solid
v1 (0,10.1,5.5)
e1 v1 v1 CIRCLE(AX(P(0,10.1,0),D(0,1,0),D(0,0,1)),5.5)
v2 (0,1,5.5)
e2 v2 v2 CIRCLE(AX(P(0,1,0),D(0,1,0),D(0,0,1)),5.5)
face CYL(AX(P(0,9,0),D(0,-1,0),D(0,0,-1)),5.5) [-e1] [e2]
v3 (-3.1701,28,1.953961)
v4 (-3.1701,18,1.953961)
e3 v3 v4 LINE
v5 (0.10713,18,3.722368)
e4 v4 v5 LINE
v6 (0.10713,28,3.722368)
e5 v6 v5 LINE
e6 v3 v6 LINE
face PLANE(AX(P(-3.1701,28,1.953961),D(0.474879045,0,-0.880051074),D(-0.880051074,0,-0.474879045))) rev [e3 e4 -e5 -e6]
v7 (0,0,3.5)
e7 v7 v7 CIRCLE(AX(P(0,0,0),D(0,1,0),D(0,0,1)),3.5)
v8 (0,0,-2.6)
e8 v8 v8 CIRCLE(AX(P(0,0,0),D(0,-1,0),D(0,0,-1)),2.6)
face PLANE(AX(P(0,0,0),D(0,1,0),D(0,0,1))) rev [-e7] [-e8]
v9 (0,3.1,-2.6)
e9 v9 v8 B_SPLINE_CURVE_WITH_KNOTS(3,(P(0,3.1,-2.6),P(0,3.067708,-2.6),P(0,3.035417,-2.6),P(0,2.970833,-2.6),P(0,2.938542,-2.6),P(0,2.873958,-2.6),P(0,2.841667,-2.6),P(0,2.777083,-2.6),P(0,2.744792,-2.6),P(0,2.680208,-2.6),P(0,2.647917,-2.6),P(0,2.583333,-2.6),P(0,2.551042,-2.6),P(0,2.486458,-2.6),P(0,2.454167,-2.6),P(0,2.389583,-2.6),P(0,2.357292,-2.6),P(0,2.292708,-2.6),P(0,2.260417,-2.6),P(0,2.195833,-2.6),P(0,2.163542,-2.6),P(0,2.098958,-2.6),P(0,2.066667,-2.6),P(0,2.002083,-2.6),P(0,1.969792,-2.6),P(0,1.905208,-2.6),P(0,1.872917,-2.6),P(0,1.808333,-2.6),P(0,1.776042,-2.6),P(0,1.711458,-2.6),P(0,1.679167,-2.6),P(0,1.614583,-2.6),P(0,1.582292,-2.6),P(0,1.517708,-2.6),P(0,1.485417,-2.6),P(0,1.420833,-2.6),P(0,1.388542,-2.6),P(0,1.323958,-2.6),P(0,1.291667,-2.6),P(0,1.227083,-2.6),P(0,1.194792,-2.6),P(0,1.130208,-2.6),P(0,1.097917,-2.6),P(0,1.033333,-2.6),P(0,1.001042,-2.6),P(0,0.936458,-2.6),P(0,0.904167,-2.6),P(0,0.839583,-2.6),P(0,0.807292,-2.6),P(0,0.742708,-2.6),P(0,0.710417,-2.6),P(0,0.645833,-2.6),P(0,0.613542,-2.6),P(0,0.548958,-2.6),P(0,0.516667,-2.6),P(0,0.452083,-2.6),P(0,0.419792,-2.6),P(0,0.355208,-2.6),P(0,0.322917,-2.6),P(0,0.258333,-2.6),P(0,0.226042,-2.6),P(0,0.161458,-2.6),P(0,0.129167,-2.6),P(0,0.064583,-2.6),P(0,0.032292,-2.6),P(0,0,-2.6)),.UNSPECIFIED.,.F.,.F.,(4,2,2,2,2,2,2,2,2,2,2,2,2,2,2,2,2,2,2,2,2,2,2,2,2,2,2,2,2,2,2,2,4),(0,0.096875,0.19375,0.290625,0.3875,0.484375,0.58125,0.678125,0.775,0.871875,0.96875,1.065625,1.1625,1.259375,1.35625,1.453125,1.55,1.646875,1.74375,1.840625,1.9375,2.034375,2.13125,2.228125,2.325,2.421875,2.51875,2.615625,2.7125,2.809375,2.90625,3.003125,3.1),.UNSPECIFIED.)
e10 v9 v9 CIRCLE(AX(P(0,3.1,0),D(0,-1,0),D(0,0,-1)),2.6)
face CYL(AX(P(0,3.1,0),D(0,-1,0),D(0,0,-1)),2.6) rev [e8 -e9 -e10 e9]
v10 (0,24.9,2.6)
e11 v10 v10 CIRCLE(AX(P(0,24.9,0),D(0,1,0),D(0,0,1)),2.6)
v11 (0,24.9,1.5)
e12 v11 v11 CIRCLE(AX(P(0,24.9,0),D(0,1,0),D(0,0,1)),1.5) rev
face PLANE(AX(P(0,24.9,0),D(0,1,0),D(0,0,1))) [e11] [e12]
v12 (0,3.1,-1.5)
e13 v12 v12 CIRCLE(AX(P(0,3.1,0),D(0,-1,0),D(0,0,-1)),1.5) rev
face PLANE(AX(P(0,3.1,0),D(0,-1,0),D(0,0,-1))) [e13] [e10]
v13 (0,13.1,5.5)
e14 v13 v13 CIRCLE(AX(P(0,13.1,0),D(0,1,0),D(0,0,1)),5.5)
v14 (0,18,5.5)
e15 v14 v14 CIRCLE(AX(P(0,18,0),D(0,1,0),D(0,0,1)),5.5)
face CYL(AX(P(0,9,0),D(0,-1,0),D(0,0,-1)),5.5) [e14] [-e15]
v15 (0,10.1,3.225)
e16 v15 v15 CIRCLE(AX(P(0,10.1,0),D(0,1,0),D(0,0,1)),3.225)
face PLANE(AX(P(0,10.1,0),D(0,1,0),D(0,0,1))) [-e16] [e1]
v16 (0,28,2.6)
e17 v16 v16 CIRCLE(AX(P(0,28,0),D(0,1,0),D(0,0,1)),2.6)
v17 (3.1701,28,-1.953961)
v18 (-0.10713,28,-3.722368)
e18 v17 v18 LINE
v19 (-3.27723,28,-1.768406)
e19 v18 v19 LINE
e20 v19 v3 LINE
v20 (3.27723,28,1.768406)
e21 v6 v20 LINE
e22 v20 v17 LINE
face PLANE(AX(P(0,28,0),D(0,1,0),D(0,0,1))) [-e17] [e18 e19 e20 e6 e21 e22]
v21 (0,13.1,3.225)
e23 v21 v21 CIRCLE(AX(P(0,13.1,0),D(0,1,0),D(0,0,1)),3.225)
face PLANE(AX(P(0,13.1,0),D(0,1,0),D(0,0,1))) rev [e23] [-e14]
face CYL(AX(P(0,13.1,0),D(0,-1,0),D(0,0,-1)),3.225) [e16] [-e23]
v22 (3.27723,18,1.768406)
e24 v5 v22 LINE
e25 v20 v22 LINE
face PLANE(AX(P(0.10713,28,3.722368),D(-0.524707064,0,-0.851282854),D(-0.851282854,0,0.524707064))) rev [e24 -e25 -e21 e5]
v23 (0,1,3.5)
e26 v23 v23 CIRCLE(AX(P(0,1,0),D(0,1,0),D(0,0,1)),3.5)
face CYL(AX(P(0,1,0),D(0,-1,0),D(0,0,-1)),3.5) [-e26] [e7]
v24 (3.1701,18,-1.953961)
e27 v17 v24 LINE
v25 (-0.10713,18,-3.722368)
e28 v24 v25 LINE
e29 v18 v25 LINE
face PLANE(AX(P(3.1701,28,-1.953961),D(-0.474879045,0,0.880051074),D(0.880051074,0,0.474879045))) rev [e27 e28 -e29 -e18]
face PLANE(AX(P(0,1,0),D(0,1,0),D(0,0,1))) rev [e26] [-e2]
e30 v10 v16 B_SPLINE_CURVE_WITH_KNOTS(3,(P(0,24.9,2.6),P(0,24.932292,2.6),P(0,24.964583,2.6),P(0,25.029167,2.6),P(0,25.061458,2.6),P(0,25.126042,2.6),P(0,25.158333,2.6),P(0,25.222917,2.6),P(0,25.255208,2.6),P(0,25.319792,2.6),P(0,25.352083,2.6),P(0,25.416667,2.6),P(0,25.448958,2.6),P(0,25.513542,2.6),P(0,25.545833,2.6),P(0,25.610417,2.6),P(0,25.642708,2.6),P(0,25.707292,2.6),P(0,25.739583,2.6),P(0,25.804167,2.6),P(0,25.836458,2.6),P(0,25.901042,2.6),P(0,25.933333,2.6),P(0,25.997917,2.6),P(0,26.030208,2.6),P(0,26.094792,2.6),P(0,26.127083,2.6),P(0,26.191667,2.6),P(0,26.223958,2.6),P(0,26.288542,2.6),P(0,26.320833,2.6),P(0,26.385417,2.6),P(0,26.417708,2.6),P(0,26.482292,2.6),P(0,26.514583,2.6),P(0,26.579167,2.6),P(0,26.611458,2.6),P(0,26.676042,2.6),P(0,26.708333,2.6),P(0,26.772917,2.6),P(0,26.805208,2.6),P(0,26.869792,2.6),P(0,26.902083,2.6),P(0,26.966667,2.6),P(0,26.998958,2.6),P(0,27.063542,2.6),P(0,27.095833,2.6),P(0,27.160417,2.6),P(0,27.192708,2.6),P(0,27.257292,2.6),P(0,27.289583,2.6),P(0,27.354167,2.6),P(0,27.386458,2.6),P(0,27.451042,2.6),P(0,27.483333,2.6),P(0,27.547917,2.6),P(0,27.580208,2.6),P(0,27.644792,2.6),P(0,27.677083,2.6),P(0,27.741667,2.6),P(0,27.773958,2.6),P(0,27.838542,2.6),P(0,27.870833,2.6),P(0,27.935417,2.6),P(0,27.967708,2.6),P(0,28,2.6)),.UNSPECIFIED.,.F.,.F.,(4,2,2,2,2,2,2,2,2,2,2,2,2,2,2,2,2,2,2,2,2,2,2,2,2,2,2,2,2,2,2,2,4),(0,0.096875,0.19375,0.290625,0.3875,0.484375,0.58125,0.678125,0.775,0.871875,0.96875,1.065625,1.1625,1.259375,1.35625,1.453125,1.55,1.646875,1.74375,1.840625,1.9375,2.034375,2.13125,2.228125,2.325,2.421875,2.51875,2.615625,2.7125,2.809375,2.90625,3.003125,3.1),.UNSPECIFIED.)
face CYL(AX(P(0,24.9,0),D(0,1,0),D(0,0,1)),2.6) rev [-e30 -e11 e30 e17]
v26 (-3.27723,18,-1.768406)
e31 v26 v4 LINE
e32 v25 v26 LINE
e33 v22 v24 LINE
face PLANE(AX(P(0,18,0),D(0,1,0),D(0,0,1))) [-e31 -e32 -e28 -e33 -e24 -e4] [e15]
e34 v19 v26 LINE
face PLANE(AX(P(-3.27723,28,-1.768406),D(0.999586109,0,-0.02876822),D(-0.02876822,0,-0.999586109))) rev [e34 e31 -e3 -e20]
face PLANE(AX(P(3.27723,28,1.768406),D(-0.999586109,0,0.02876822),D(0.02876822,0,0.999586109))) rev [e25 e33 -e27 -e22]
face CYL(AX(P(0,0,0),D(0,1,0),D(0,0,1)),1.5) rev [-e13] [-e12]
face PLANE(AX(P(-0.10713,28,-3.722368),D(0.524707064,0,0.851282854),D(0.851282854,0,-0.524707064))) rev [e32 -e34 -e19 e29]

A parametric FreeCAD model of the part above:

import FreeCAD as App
import Part
import Sketcher

V = App.Vector

doc = App.newDocument("Part")
body = doc.addObject("PartDesign::Body", "Body")

# Sketch on XZ plane
sketch1 = doc.addObject("Sketcher::SketchObject", "Sketch")
body.addObject(sketch1)
sketch1.AttachmentSupport = (doc.XZ_Plane, [""])
sketch1.MapMode = "FlatFace"
sketch1.addGeometry(Part.Circle(V(0, 0, 0), V(0, 0, 1), 3.5), False)
sketch1.addConstraint(Sketcher.Constraint("Coincident", 0, 3, -1, 1))
sketch1.addConstraint(Sketcher.Constraint("Diameter", 0, 7.0))
pad1 = doc.addObject("PartDesign::Pad", "Pad")
body.addObject(pad1)
pad1.Profile = sketch1
pad1.Length = 1
pad1.Reversed = True

# Sketch on XZ plane
sketch2 = doc.addObject("Sketcher::SketchObject", "Sketch001")
body.addObject(sketch2)
sketch2.AttachmentSupport = (doc.XZ_Plane, [""])
sketch2.MapMode = "FlatFace"
sketch2.AttachmentOffset = App.Placement(V(0, 0, -1), App.Rotation())
sketch2.addGeometry(Part.Circle(V(0, 0, 0), V(0, 0, 1), 6), False)
sketch2.addConstraint(Sketcher.Constraint("Coincident", 0, 3, -1, 1))
sketch2.addConstraint(Sketcher.Constraint("Diameter", 0, 11.0))
pad2 = doc.addObject("PartDesign::Pad", "Pad001")
body.addObject(pad2)
pad2.Profile = sketch2
pad2.Length = 8
pad2.Reversed = True

# Sketch on XZ plane
sketch3 = doc.addObject("Sketcher::SketchObject", "Sketch002")
body.addObject(sketch3)
sketch3.AttachmentSupport = (doc.XZ_Plane, [""])
sketch3.MapMode = "FlatFace"
sketch3.AttachmentOffset = App.Placement(V(0, 0, -9), App.Rotation())
sketch3.addGeometry(Part.Circle(V(0, 0, 0), V(0, 0, 1), 6), False)
sketch3.addConstraint(Sketcher.Constraint("Coincident", 0, 3, -1, 1))
sketch3.addConstraint(Sketcher.Constraint("Diameter", 0, 11.0))
pad3 = doc.addObject("PartDesign::Pad", "Pad002")
body.addObject(pad3)
pad3.Profile = sketch3
pad3.Length = 9
pad3.Reversed = True

# Sketch on XZ plane
sketch4 = doc.addObject("Sketcher::SketchObject", "Sketch003")
body.addObject(sketch4)
sketch4.AttachmentSupport = (doc.XZ_Plane, [""])
sketch4.MapMode = "FlatFace"
sketch4.AttachmentOffset = App.Placement(V(0, 0, -18), App.Rotation())
sketch4.addGeometry(Part.LineSegment(V(3.3, 1.8, 0), V(3.2, -2, 0)), False)
sketch4.addGeometry(Part.LineSegment(V(3.2, -2, 0), V(-0.1, -3.7, 0)), False)
sketch4.addGeometry(Part.LineSegment(V(-0.1, -3.7, 0), V(-3.3, -1.8, 0)), False)
sketch4.addGeometry(Part.LineSegment(V(-3.3, -1.8, 0), V(-3.2, 2, 0)), False)
sketch4.addGeometry(Part.LineSegment(V(-3.2, 2, 0), V(0.1, 3.7, 0)), False)
sketch4.addGeometry(Part.LineSegment(V(0.1, 3.7, 0), V(3.3, 1.8, 0)), False)
sketch4.addConstraint(Sketcher.Constraint("Coincident", 0, 2, 1, 1))
sketch4.addConstraint(Sketcher.Constraint("Coincident", 1, 2, 2, 1))
sketch4.addConstraint(Sketcher.Constraint("Coincident", 2, 2, 3, 1))
sketch4.addConstraint(Sketcher.Constraint("Coincident", 3, 2, 4, 1))
sketch4.addConstraint(Sketcher.Constraint("Coincident", 4, 2, 5, 1))
sketch4.addConstraint(Sketcher.Constraint("Coincident", 5, 2, 0, 1))
sketch4.addConstraint(Sketcher.Constraint("Symmetric", 0, 2, 3, 2, -1, 1))
sketch4.addConstraint(Sketcher.Constraint("Symmetric", 1, 2, 4, 2, -1, 1))
sketch4.addConstraint(Sketcher.Constraint("Symmetric", 2, 2, 5, 2, -1, 1))
sketch4.addConstraint(Sketcher.Constraint("Equal", 0, 1))
sketch4.addConstraint(Sketcher.Constraint("Equal", 1, 2))
sketch4.addConstraint(Sketcher.Constraint("DistanceX", -1, 1, 0, 2, 3.1701))
sketch4.addConstraint(Sketcher.Constraint("DistanceX", 2, 2, 1, 2, 3.1701))
sketch4.addConstraint(Sketcher.Constraint("Distance", 0, 3.723909))
sketch4.addConstraint(Sketcher.Constraint("DistanceY", 0, 2, -1, 1, 1.953961))
pad4 = doc.addObject("PartDesign::Pad", "Pad003")
body.addObject(pad4)
pad4.Profile = sketch4
pad4.Length = 10
pad4.Reversed = True

# Sketch on XZ plane
sketch5 = doc.addObject("Sketcher::SketchObject", "Sketch004")
body.addObject(sketch5)
sketch5.AttachmentSupport = (doc.XZ_Plane, [""])
sketch5.MapMode = "FlatFace"
sketch5.AttachmentOffset = App.Placement(V(0, 0, -28), App.Rotation())
sketch5.addGeometry(Part.Circle(V(0, 0, 0), V(0, 0, 1), 1.5), False)
sketch5.addConstraint(Sketcher.Constraint("Coincident", 0, 3, -1, 1))
sketch5.addConstraint(Sketcher.Constraint("Diameter", 0, 3.0))
pocket1 = doc.addObject("PartDesign::Pocket", "Pocket")
body.addObject(pocket1)
pocket1.Profile = sketch5
pocket1.Type = "ThroughAll"
pocket1.Reversed = True

# Sketch on XZ plane
sketch6 = doc.addObject("Sketcher::SketchObject", "Sketch005")
body.addObject(sketch6)
sketch6.AttachmentSupport = (doc.XZ_Plane, [""])
sketch6.MapMode = "FlatFace"
sketch6.addGeometry(Part.Circle(V(0, 0, 0), V(0, 0, 1), 2.6), False)
sketch6.addConstraint(Sketcher.Constraint("Coincident", 0, 3, -1, 1))
sketch6.addConstraint(Sketcher.Constraint("Diameter", 0, 5.2))
pocket2 = doc.addObject("PartDesign::Pocket", "Pocket001")
body.addObject(pocket2)
pocket2.Profile = sketch6
pocket2.Length = 3.1

# Sketch on XZ plane
sketch7 = doc.addObject("Sketcher::SketchObject", "Sketch006")
body.addObject(sketch7)
sketch7.AttachmentSupport = (doc.XZ_Plane, [""])
sketch7.MapMode = "FlatFace"
sketch7.AttachmentOffset = App.Placement(V(0, 0, -10.1), App.Rotation())
sketch7.addGeometry(Part.Circle(V(0, 0, 0), V(0, 0, 1), 8.7), False)
sketch7.addGeometry(Part.Circle(V(0, 0, 0), V(0, 0, 1), 3.2), False)
sketch7.addConstraint(Sketcher.Constraint("Coincident", 0, 3, -1, 1))
sketch7.addConstraint(Sketcher.Constraint("Coincident", 1, 3, -1, 1))
sketch7.addConstraint(Sketcher.Constraint("Diameter", 1, 6.45))
sketch7.addConstraint(Sketcher.Constraint("Diameter", 0, 17.352406))
pocket3 = doc.addObject("PartDesign::Pocket", "Pocket002")
body.addObject(pocket3)
pocket3.Profile = sketch7
pocket3.Length = 3

# Sketch on XZ plane
sketch8 = doc.addObject("Sketcher::SketchObject", "Sketch007")
body.addObject(sketch8)
sketch8.AttachmentSupport = (doc.XZ_Plane, [""])
sketch8.MapMode = "FlatFace"
sketch8.AttachmentOffset = App.Placement(V(0, 0, -24.9), App.Rotation())
sketch8.addGeometry(Part.Circle(V(0, 0, 0), V(0, 0, 1), 2.6), False)
sketch8.addConstraint(Sketcher.Constraint("Coincident", 0, 3, -1, 1))
sketch8.addConstraint(Sketcher.Constraint("Diameter", 0, 5.2))
pocket4 = doc.addObject("PartDesign::Pocket", "Pocket003")
body.addObject(pocket4)
pocket4.Profile = sketch8
pocket4.Length = 3.1

doc.recompute()
